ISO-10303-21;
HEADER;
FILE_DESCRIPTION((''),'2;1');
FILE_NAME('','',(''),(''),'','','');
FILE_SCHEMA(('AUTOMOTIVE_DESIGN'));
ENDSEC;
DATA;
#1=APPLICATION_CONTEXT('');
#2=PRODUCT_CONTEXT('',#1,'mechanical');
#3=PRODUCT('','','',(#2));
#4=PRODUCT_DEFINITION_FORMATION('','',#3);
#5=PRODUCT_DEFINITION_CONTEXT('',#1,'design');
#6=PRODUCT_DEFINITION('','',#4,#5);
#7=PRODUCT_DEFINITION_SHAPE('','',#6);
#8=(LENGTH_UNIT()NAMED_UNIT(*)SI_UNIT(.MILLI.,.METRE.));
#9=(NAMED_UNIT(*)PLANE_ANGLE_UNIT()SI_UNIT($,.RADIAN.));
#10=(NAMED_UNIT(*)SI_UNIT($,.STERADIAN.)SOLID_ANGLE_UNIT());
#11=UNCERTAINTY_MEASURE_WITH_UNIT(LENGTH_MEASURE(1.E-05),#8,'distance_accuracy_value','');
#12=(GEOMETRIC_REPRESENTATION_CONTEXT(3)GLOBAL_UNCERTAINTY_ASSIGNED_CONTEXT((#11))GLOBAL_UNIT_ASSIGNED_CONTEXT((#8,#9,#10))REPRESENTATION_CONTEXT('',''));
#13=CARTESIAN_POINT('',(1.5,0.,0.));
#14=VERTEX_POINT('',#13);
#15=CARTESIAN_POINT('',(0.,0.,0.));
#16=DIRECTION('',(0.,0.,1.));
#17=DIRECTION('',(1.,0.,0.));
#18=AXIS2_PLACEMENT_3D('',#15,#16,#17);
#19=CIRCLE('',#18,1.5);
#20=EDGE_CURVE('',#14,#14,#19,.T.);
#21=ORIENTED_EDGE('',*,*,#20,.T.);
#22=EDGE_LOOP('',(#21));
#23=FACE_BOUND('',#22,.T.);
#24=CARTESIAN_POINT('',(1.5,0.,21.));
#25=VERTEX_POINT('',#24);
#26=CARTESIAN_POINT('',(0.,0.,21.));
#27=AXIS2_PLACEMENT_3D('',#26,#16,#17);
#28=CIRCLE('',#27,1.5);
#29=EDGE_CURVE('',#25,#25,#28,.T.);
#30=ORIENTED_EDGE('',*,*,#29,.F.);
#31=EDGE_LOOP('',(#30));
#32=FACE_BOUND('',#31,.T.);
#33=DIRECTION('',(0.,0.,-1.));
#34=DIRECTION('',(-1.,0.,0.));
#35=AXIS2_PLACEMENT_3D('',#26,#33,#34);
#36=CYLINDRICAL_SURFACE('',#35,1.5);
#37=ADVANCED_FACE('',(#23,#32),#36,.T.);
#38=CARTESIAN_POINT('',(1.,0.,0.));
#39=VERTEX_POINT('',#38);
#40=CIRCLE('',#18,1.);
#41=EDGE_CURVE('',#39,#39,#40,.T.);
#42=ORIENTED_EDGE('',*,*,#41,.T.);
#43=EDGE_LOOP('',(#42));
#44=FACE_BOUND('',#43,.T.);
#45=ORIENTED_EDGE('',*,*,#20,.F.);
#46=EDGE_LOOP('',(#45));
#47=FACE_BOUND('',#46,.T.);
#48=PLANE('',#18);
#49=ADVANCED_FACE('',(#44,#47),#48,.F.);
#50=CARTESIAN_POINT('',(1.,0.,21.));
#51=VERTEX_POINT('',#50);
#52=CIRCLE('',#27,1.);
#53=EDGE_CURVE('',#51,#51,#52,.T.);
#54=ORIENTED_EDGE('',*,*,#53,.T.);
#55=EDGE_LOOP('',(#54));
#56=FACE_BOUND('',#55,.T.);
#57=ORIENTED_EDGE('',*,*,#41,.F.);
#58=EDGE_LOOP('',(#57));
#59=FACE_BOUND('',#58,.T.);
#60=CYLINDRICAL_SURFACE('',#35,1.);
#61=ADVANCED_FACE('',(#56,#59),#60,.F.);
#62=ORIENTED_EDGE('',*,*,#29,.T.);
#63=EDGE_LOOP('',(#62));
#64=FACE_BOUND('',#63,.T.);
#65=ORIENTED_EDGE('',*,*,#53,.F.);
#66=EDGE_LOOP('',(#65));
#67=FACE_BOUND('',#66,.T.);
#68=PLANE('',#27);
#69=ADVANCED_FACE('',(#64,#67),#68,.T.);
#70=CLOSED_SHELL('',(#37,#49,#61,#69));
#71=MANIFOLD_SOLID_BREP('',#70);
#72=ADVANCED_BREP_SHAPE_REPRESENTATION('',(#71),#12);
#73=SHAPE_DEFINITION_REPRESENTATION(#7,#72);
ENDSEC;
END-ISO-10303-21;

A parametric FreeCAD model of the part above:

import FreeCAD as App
import Part
import Sketcher
Q = App.Units.Quantity

doc = App.newDocument("Part")
body = doc.addObject("PartDesign::Body", "Body")

sketch1 = body.newObject("Sketcher::SketchObject", "Sketch")
sketch1.AttachmentSupport = (doc.getObject("XY_Plane"), [""])
sketch1.MapMode = "FlatFace"
sketch1.addGeometry([
    Part.Circle(App.Vector(0, 0, 0), App.Vector(0, 0, 1), 1.5),
    Part.Circle(App.Vector(0, 0, 0), App.Vector(0, 0, 1), 1),
], False)
sketch1.addConstraint([
    Sketcher.Constraint("Coincident", 0, 3, -1, 1),
    Sketcher.Constraint("Coincident", 1, 3, -1, 1),
    Sketcher.Constraint("Diameter", 0, Q("3 mm")),
    Sketcher.Constraint("Diameter", 1, Q("2 mm")),
])
pad1 = body.newObject("PartDesign::Pad", "Pad")
pad1.Profile = sketch1
pad1.Length = 21

doc.recompute()
